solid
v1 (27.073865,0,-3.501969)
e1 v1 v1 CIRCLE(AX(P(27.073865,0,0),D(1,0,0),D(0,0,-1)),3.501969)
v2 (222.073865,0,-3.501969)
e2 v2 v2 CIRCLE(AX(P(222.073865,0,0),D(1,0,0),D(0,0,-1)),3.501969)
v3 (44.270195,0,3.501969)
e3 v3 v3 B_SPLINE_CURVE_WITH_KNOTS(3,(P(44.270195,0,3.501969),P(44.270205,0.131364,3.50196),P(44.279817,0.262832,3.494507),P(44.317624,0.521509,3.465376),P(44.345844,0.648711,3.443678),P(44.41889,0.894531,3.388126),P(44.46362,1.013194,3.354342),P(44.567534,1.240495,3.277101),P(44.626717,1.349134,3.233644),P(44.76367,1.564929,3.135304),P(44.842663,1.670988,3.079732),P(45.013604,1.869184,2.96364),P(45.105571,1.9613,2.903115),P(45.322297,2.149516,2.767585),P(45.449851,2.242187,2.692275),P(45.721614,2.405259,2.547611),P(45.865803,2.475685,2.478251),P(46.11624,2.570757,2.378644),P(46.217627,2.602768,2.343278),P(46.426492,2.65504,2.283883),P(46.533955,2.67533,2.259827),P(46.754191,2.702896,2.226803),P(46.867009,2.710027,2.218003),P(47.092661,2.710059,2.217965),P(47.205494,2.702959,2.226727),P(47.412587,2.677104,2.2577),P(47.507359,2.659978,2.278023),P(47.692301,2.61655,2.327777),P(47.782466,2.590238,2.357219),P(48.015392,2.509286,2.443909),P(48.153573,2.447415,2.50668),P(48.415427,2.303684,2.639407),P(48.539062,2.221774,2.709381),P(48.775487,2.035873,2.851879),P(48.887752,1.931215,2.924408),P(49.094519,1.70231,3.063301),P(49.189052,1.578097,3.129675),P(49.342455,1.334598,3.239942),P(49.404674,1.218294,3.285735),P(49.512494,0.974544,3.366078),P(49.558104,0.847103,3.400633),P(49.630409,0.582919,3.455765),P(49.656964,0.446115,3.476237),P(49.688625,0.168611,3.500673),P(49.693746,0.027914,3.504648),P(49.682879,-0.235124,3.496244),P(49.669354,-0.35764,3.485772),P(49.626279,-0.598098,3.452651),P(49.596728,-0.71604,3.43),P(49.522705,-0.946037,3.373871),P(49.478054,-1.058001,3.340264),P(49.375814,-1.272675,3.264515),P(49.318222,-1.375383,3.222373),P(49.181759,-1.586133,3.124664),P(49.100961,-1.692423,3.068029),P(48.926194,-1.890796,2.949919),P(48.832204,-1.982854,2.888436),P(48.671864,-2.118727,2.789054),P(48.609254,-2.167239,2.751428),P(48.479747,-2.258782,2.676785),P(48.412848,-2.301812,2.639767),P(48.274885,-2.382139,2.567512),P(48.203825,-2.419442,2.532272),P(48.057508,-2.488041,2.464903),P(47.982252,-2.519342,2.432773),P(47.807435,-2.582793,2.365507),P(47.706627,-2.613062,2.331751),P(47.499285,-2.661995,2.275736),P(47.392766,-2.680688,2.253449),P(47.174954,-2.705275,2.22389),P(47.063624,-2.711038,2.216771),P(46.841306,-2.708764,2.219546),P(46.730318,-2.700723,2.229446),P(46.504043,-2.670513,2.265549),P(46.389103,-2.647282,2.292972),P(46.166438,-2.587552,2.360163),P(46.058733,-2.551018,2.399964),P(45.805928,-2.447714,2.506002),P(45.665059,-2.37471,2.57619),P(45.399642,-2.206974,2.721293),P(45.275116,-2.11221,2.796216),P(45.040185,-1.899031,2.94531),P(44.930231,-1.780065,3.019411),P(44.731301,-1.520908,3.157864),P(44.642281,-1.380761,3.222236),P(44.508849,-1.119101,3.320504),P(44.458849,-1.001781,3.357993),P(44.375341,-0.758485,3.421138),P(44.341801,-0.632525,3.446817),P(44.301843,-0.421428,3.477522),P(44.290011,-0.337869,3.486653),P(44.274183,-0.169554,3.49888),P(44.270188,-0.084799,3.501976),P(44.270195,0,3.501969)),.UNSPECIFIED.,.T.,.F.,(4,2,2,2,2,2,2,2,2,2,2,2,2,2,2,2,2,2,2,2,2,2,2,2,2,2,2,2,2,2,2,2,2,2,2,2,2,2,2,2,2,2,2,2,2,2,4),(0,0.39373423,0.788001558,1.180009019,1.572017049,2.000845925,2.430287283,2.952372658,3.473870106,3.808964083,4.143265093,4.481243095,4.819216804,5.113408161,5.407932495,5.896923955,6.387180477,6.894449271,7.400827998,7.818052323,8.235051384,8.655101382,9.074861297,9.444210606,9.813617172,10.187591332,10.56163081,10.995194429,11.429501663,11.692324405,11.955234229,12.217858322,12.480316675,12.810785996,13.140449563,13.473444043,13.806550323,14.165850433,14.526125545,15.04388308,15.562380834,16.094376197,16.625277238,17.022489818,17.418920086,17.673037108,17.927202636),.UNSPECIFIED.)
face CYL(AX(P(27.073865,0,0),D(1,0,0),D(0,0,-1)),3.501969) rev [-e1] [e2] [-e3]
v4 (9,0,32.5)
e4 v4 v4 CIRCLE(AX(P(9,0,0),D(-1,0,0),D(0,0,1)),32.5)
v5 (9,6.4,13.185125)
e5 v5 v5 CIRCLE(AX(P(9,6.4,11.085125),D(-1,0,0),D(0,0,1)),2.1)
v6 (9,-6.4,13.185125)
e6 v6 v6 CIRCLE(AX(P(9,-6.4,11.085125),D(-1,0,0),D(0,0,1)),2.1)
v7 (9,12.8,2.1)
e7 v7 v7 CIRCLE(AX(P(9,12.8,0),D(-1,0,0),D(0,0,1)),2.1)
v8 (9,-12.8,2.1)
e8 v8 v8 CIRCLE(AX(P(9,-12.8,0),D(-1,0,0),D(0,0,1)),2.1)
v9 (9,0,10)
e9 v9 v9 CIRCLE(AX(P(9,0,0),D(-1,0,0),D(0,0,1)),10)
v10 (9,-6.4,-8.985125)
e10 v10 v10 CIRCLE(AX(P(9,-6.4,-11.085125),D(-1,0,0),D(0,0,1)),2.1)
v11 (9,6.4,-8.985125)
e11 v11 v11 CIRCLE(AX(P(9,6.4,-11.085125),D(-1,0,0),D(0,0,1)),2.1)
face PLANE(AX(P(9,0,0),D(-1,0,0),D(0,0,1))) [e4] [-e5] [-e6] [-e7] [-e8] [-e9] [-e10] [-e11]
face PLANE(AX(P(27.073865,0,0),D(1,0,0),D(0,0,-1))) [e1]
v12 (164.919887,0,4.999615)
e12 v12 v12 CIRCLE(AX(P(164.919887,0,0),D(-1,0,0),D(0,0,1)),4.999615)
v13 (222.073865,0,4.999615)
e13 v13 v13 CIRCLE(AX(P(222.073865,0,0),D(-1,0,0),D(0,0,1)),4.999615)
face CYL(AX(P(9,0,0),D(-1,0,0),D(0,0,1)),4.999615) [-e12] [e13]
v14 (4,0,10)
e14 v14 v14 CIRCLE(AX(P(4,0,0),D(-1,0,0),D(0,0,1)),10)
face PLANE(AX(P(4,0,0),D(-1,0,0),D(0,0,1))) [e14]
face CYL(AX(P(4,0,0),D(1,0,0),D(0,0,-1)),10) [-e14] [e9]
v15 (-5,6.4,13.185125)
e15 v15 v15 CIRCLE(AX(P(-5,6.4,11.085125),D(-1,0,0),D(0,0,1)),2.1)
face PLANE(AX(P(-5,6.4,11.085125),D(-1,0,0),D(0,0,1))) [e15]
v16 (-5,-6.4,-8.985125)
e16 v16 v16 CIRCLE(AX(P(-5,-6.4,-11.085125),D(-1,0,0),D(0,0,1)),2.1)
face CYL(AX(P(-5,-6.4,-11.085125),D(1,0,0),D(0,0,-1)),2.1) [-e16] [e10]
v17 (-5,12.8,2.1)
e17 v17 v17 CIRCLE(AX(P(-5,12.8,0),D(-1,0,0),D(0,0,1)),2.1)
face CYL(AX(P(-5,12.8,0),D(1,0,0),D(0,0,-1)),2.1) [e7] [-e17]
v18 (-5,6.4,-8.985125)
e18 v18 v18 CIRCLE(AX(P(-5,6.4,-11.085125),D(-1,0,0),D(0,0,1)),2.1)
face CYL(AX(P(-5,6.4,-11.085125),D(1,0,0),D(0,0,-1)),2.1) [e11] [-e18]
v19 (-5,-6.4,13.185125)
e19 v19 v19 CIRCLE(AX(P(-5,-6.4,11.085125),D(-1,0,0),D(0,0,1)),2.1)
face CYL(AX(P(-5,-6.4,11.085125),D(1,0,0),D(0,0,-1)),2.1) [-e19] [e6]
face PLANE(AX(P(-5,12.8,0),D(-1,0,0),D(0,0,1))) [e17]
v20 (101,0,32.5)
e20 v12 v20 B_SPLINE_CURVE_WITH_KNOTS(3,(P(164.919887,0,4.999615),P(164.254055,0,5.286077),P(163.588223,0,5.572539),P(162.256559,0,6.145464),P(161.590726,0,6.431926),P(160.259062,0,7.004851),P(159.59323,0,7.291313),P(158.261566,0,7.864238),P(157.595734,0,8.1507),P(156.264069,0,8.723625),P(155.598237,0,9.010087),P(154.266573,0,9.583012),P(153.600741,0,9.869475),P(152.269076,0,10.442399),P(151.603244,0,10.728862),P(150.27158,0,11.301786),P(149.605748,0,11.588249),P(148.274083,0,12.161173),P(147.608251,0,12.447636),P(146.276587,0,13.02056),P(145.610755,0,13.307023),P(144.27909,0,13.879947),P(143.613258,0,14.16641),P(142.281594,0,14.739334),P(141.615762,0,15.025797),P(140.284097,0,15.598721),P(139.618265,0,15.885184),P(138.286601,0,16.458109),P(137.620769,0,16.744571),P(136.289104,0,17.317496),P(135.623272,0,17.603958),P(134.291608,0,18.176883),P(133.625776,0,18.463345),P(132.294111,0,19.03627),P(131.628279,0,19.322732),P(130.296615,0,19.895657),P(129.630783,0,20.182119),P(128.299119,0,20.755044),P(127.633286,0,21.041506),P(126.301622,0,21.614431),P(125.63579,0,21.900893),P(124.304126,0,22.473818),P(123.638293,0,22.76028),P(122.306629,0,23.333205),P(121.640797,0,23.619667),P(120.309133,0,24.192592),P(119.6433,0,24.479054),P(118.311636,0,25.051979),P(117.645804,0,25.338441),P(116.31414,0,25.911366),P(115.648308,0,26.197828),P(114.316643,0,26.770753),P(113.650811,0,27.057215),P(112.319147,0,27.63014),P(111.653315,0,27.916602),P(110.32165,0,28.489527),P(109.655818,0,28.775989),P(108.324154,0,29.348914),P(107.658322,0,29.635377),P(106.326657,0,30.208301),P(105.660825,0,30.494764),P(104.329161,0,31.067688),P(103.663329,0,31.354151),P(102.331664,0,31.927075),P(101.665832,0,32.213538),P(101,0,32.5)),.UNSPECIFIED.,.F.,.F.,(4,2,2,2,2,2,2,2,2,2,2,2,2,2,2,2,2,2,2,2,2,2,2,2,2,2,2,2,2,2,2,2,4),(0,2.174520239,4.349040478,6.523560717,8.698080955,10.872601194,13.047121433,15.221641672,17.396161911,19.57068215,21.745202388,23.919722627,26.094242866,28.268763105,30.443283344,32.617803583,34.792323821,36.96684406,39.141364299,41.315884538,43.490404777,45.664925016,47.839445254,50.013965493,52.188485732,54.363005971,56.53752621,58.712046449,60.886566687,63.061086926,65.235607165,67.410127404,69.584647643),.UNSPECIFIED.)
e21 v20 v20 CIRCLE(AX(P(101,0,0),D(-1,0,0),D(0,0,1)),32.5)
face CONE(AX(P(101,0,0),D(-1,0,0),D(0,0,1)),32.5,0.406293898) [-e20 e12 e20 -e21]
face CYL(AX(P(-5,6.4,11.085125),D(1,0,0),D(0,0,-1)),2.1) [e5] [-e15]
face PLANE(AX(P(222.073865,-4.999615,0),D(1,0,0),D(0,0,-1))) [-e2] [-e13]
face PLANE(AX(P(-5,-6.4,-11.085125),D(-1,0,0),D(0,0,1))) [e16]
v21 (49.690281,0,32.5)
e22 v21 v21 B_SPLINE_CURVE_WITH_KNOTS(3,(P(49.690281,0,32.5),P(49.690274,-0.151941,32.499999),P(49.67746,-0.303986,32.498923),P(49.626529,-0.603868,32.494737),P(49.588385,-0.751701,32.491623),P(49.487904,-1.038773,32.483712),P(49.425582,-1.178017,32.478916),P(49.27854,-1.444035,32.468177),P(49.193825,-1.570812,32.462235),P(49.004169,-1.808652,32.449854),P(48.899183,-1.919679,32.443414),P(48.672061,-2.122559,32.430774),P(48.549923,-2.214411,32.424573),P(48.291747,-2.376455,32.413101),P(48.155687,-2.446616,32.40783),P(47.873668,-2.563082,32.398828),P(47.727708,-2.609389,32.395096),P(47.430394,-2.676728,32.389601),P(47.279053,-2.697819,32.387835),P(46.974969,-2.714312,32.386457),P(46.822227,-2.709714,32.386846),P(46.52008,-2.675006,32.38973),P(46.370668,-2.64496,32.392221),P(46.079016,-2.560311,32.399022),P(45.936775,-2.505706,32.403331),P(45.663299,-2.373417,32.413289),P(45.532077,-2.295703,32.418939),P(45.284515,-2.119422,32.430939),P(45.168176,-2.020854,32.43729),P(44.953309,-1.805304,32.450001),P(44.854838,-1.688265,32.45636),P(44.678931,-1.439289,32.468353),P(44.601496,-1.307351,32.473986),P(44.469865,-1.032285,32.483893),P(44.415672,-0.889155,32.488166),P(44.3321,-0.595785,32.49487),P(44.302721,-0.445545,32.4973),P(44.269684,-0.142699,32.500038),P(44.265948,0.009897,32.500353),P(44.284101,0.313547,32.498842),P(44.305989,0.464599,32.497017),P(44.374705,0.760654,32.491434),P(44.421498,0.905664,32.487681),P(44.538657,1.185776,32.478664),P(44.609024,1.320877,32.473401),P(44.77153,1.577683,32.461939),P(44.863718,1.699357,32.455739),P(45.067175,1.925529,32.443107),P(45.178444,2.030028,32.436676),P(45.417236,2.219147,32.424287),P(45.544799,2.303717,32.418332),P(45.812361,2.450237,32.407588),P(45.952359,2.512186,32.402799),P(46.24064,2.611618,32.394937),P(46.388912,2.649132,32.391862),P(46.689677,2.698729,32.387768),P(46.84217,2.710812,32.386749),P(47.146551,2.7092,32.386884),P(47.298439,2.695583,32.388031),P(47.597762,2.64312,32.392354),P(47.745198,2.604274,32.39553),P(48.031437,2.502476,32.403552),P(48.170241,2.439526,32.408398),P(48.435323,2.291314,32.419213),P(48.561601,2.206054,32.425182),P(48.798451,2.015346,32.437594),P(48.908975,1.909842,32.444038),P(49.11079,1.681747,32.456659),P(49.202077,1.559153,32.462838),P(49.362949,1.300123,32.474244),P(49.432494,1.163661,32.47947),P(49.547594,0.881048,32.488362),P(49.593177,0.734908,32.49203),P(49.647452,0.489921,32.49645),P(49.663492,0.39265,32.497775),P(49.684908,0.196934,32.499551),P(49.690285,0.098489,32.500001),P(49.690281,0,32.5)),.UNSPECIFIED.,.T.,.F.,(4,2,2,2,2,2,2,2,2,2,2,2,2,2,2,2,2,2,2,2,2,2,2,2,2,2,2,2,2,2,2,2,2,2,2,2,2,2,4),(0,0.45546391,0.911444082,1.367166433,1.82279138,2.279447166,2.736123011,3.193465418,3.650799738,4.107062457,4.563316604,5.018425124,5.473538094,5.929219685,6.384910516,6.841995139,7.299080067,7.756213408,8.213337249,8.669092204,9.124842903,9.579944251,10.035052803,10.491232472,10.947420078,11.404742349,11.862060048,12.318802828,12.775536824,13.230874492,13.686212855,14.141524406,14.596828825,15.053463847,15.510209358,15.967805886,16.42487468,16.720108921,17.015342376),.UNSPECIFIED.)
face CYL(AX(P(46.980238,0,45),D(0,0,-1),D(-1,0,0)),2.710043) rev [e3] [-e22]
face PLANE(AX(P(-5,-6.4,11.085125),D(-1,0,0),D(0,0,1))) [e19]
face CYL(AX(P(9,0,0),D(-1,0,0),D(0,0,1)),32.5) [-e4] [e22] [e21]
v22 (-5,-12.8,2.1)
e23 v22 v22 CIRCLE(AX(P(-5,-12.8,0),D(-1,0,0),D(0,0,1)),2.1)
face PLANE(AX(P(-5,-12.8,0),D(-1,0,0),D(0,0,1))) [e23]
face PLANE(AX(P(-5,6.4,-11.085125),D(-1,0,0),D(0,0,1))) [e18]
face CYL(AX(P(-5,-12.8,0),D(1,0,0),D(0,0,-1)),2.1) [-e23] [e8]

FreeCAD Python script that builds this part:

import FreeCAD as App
import Part
import Sketcher
from FreeCAD import Vector

doc = App.newDocument("Part")
params = doc.addObject("Spreadsheet::Sheet", "Params")
for row, (alias, value) in enumerate([
    ("sketch1_width", "92 mm"),
    ("sketch1_height", "32.5 mm"),
    ("revolution_angle", "360 deg"),
    ("sketch2_diameter", "4.2 mm"),
    ("pad1_length", "14 mm"),
    ("sketch3_diameter", "20 mm"),
    ("pad2_length", "5 mm"),
    ("pocket1_length", "195 mm"),
    ("pocket2_length", "45 mm"),
], start=1):
    params.set(f"A{row}", alias)
    params.set(f"B{row}", "=" + value)
    params.setAlias(f"B{row}", alias)

body = doc.addObject("PartDesign::Body", "Body")

sketch1 = body.newObject("Sketcher::SketchObject", "Sketch")
sketch1.AttachmentSupport = (doc.getObject("XY_Plane"), [""])
sketch1.MapMode = "FlatFace"
sketch1.addGeometry(Part.LineSegment(Vector(9, 0, 0), Vector(9, -32.5, 0)), False)
sketch1.addGeometry(Part.LineSegment(Vector(9, -32.5, 0), Vector(101, -32.5, 0)), False)
sketch1.addGeometry(Part.LineSegment(Vector(101, -32.5, 0), Vector(164.9, -5, 0)), False)
sketch1.addGeometry(Part.LineSegment(Vector(164.9, -5, 0), Vector(222.1, -5, 0)), False)
sketch1.addGeometry(Part.LineSegment(Vector(222.1, -5, 0), Vector(222.1, 0, 0)), False)
sketch1.addGeometry(Part.LineSegment(Vector(222.1, 0, 0), Vector(9, 0, 0)), False)
sketch1.addConstraint(Sketcher.Constraint("Coincident", 0, 2, 1, 1))
sketch1.addConstraint(Sketcher.Constraint("Coincident", 1, 2, 2, 1))
sketch1.addConstraint(Sketcher.Constraint("Coincident", 2, 2, 3, 1))
sketch1.addConstraint(Sketcher.Constraint("Coincident", 3, 2, 4, 1))
sketch1.addConstraint(Sketcher.Constraint("Coincident", 4, 2, 5, 1))
sketch1.addConstraint(Sketcher.Constraint("Coincident", 5, 2, 0, 1))
sketch1.addConstraint(Sketcher.Constraint("Vertical", 0))
sketch1.addConstraint(Sketcher.Constraint("Horizontal", 1))
sketch1.addConstraint(Sketcher.Constraint("Horizontal", 3))
sketch1.addConstraint(Sketcher.Constraint("Vertical", 4))
sketch1.addConstraint(Sketcher.Constraint("Horizontal", 5))
sketch1.addConstraint(Sketcher.Constraint("PointOnObject", 4, 2, -1))
sketch1.addConstraint(Sketcher.Constraint("DistanceX", 1, 1, 1, 2, 92.0))
sketch1.addConstraint(Sketcher.Constraint("DistanceY", 0, 2, 0, 1, 32.5))
sketch1.addConstraint(Sketcher.Constraint("DistanceX", -1, 1, 0, 2, 9.0))
sketch1.addConstraint(Sketcher.Constraint("DistanceX", 3, 1, 3, 2, 57.153978))
sketch1.addConstraint(Sketcher.Constraint("DistanceX", 5, 2, 5, 1, 213.073865))
sketch1.addConstraint(Sketcher.Constraint("DistanceY", 4, 1, 4, 2, 4.999615))
sketch1.setExpression("Constraints[12]", "Params.sketch1_width")
sketch1.setExpression("Constraints[13]", "Params.sketch1_height")
revolution = body.newObject("PartDesign::Revolution", "Revolution")
revolution.Profile = sketch1
revolution.ReferenceAxis = (sketch1, ["H_Axis"])
revolution.setExpression("Angle", "Params.revolution_angle")

sketch2 = body.newObject("Sketcher::SketchObject", "Sketch001")
sketch2.AttachmentSupport = (doc.getObject("YZ_Plane"), [""])
sketch2.MapMode = "FlatFace"
sketch2.AttachmentOffset = App.Placement(Vector(0, 0, 9), App.Rotation())
sketch2.addGeometry(Part.Circle(Vector(12.8, 0, 0), Vector(0, 0, 1), 2.1), False)
sketch2.addGeometry(Part.Circle(Vector(6.4, 11.1, 0), Vector(0, 0, 1), 2.1), False)
sketch2.addGeometry(Part.Circle(Vector(-6.4, 11.1, 0), Vector(0, 0, 1), 2.1), False)
sketch2.addGeometry(Part.Circle(Vector(-12.8, 0, 0), Vector(0, 0, 1), 2.1), False)
sketch2.addGeometry(Part.Circle(Vector(-6.4, -11.1, 0), Vector(0, 0, 1), 2.1), False)
sketch2.addGeometry(Part.Circle(Vector(6.4, -11.1, 0), Vector(0, 0, 1), 2.1), False)
sketch2.addConstraint(Sketcher.Constraint("Equal", 0, 1))
sketch2.addConstraint(Sketcher.Constraint("Equal", 1, 2))
sketch2.addConstraint(Sketcher.Constraint("Equal", 2, 3))
sketch2.addConstraint(Sketcher.Constraint("Equal", 3, 4))
sketch2.addConstraint(Sketcher.Constraint("Equal", 4, 5))
sketch2.addConstraint(Sketcher.Constraint("Symmetric", 0, 3, 3, 3, -1, 1))
sketch2.addConstraint(Sketcher.Constraint("Symmetric", 1, 3, 4, 3, -1, 1))
sketch2.addConstraint(Sketcher.Constraint("Symmetric", 2, 3, 5, 3, -1, 1))
sketch2.addConstraint(Sketcher.Constraint("Symmetric", 1, 3, 2, 3, -2))
sketch2.addConstraint(Sketcher.Constraint("PointOnObject", 0, 3, -1))
sketch2.addConstraint(Sketcher.Constraint("Diameter", 0, 4.2))
sketch2.addConstraint(Sketcher.Constraint("DistanceX", -1, 1, 0, 3, 12.8))
sketch2.addConstraint(Sketcher.Constraint("DistanceX", -1, 1, 1, 3, 6.4))
sketch2.addConstraint(Sketcher.Constraint("DistanceY", 4, 3, 2, 3, 22.17025))
sketch2.setExpression("Constraints[10]", "Params.sketch2_diameter")
pad1 = body.newObject("PartDesign::Pad", "Pad")
pad1.Profile = sketch2
pad1.setExpression("Length", "Params.pad1_length")
pad1.Reversed = True

sketch3 = body.newObject("Sketcher::SketchObject", "Sketch002")
sketch3.AttachmentSupport = (doc.getObject("YZ_Plane"), [""])
sketch3.MapMode = "FlatFace"
sketch3.AttachmentOffset = App.Placement(Vector(0, 0, 9), App.Rotation())
sketch3.addGeometry(Part.Circle(Vector(0, 0, 0), Vector(0, 0, 1), 10), False)
sketch3.addConstraint(Sketcher.Constraint("Coincident", 0, 3, -1, 1))
sketch3.addConstraint(Sketcher.Constraint("Diameter", 0, 20.0))
sketch3.setExpression("Constraints[1]", "Params.sketch3_diameter")
pad2 = body.newObject("PartDesign::Pad", "Pad001")
pad2.Profile = sketch3
pad2.setExpression("Length", "Params.pad2_length")
pad2.Reversed = True

sketch4 = body.newObject("Sketcher::SketchObject", "Sketch003")
sketch4.AttachmentSupport = (doc.getObject("YZ_Plane"), [""])
sketch4.MapMode = "FlatFace"
sketch4.AttachmentOffset = App.Placement(Vector(0, 0, 222.073865), App.Rotation())
sketch4.addGeometry(Part.Circle(Vector(0, 0, 0), Vector(0, 0, 1), 3.5), False)
sketch4.addConstraint(Sketcher.Constraint("Coincident", 0, 3, -1, 1))
sketch4.addConstraint(Sketcher.Constraint("Diameter", 0, 7.003938))
pocket1 = body.newObject("PartDesign::Pocket", "Pocket")
pocket1.Profile = sketch4
pocket1.setExpression("Length", "Params.pocket1_length")

sketch5 = body.newObject("Sketcher::SketchObject", "Sketch004")
sketch5.AttachmentSupport = (doc.getObject("XY_Plane"), [""])
sketch5.MapMode = "FlatFace"
sketch5.addGeometry(Part.Circle(Vector(47, 0, 0), Vector(0, 0, 1), 2.7), False)
sketch5.addConstraint(Sketcher.Constraint("PointOnObject", 0, 3, -1))
sketch5.addConstraint(Sketcher.Constraint("Diameter", 0, 5.420086))
sketch5.addConstraint(Sketcher.Constraint("DistanceX", -1, 1, 0, 3, 46.980238))
pocket2 = body.newObject("PartDesign::Pocket", "Pocket001")
pocket2.Profile = sketch5
pocket2.setExpression("Length", "Params.pocket2_length")
pocket2.Reversed = True

doc.recompute()
